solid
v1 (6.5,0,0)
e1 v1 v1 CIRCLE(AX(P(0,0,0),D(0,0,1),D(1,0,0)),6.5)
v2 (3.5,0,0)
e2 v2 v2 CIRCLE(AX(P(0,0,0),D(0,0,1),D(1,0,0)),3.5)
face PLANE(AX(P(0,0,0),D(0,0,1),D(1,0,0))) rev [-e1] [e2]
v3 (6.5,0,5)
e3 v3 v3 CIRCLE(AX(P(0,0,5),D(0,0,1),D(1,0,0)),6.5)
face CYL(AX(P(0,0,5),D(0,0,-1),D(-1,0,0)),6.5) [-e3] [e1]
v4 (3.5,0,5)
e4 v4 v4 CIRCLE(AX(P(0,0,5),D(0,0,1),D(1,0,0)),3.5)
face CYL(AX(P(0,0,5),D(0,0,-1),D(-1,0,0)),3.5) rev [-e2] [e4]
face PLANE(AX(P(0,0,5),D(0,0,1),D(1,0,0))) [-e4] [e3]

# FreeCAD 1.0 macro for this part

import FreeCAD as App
import Part
import Sketcher

V = App.Vector

doc = App.newDocument("Part")
body = doc.addObject("PartDesign::Body", "Body")

# Sketch on XY plane
sketch1 = doc.addObject("Sketcher::SketchObject", "Sketch")
body.addObject(sketch1)
sketch1.AttachmentSupport = (doc.XY_Plane, [""])
sketch1.MapMode = "FlatFace"
sketch1.addGeometry(Part.Circle(V(0, 0, 0), V(0, 0, 1), 6.5), False)
sketch1.addGeometry(Part.Circle(V(0, 0, 0), V(0, 0, 1), 3.5), False)
sketch1.addConstraint(Sketcher.Constraint("Coincident", 0, 3, -1, 1))
sketch1.addConstraint(Sketcher.Constraint("Coincident", 1, 3, -1, 1))
sketch1.addConstraint(Sketcher.Constraint("Diameter", 0, 13.0))
sketch1.addConstraint(Sketcher.Constraint("Diameter", 1, 7.0))
pad1 = doc.addObject("PartDesign::Pad", "Pad")
body.addObject(pad1)
pad1.Profile = sketch1
pad1.Length = 5

doc.recompute()
